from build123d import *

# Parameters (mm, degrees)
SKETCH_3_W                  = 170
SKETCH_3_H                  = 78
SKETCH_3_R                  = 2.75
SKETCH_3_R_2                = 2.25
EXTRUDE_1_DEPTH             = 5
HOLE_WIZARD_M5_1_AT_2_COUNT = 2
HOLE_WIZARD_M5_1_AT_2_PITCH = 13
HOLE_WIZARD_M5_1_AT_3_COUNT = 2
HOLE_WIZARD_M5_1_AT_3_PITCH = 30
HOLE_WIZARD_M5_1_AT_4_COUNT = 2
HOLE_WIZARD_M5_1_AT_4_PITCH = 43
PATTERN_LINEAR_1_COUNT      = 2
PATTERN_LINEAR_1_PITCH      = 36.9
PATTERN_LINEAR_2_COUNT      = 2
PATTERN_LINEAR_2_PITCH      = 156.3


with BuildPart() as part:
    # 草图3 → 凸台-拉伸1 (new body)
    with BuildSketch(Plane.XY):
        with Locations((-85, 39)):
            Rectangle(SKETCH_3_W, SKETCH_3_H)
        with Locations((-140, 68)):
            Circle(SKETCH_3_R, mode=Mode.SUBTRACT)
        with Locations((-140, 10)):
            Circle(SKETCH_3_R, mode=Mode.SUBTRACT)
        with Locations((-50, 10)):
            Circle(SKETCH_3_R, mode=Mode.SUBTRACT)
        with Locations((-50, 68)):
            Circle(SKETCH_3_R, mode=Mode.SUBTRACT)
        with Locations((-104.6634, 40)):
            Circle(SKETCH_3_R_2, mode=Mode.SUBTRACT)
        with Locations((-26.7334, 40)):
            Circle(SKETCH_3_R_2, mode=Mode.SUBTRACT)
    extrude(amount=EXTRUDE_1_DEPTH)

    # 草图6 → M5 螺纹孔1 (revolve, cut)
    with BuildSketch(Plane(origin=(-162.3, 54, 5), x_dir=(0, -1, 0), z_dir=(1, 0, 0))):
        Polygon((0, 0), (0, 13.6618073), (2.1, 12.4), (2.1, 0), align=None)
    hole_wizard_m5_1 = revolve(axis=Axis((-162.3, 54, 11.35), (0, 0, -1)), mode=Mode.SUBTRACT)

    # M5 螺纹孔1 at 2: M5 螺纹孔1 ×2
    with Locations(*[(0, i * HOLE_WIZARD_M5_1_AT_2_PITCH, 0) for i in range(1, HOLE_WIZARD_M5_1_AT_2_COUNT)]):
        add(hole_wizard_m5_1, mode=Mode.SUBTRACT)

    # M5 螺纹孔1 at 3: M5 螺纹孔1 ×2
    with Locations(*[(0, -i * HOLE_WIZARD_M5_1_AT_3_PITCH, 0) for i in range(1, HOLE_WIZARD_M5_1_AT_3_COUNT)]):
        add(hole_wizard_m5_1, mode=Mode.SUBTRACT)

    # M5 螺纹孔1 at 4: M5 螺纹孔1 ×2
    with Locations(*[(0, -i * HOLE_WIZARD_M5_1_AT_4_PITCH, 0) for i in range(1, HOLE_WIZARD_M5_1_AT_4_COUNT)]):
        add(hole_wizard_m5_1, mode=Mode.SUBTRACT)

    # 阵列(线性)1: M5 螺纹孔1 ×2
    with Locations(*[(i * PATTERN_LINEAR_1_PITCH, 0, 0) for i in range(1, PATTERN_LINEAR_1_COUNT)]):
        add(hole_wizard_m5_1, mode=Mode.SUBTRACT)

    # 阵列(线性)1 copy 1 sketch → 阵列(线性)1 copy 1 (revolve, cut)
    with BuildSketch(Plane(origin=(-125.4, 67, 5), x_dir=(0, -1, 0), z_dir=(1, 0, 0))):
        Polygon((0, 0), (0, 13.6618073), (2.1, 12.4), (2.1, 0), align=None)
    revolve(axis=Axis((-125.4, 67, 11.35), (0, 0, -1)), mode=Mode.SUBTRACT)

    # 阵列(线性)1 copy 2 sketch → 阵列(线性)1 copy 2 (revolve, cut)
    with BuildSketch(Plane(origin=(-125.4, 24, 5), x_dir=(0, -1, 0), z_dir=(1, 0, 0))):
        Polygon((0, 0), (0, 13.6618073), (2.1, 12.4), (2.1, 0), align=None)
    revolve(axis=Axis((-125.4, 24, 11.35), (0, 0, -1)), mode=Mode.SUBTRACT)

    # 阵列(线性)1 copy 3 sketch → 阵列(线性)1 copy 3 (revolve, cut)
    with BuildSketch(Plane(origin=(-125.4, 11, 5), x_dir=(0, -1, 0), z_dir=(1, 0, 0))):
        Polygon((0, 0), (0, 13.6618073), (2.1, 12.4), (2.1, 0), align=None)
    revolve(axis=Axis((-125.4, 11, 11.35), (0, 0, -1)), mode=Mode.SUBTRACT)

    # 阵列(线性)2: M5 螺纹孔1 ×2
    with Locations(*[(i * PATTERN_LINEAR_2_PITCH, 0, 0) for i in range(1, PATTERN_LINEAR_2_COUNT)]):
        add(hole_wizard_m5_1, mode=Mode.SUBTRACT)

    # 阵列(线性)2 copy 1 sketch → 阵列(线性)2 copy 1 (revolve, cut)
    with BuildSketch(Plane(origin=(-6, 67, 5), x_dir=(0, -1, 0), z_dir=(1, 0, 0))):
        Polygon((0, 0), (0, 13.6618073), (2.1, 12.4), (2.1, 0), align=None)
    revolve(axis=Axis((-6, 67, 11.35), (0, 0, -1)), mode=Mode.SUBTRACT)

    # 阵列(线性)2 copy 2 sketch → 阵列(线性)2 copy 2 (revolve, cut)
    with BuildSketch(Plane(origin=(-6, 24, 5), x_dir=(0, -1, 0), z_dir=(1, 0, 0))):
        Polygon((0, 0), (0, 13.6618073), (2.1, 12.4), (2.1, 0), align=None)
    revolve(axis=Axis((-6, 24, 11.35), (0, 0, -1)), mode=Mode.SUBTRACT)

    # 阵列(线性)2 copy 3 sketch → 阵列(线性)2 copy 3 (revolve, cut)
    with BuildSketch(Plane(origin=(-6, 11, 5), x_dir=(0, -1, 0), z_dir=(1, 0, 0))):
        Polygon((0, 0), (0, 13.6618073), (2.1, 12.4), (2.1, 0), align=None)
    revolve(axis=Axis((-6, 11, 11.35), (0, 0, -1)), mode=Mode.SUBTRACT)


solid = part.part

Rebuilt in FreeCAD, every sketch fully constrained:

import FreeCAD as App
import Part
import Sketcher
from FreeCAD import Vector
Q = App.Units.Quantity


def add_polygon(sketch, points):
    """Adds a closed chain of lines whose ends are joined by coincident constraints."""
    first, n = sketch.GeometryCount, len(points)
    for a, b in zip(points, points[1:] + points[:1]):
        sketch.addGeometry(Part.LineSegment(App.Vector(*a, 0), App.Vector(*b, 0)), False)
    for i in range(n):
        sketch.addConstraint(Sketcher.Constraint("Coincident", first + i, 2, first + (i + 1) % n, 1))

doc = App.newDocument("Part")
body = doc.addObject("PartDesign::Body", "Body")

# Sketch on XY plane
sketch1 = body.newObject("Sketcher::SketchObject", "Sketch")
sketch1.AttachmentSupport = (doc.getObject("XY_Plane"), [""])
sketch1.MapMode = "FlatFace"
add_polygon(sketch1, [(-170, 78), (-170, 0), (0, 0), (0, 78)])  # lines 0-3
sketch1.addGeometry(Part.Circle(Vector(-140, 10, 0), Vector(0, 0, 1), 2.8), False)  # 4
sketch1.addGeometry(Part.Circle(Vector(-50, 10, 0), Vector(0, 0, 1), 2.8), False)  # 5
sketch1.addGeometry(Part.Circle(Vector(-104.7, 40, 0), Vector(0, 0, 1), 2.2), False)  # 6
sketch1.addGeometry(Part.Circle(Vector(-140, 68, 0), Vector(0, 0, 1), 2.8), False)  # 7
sketch1.addGeometry(Part.Circle(Vector(-26.7, 40, 0), Vector(0, 0, 1), 2.2), False)  # 8
sketch1.addGeometry(Part.Circle(Vector(-50, 68, 0), Vector(0, 0, 1), 2.8), False)  # 9
sketch1.addConstraint(Sketcher.Constraint("Vertical", 0))
sketch1.addConstraint(Sketcher.Constraint("Horizontal", 1))
sketch1.addConstraint(Sketcher.Constraint("Vertical", 2))
sketch1.addConstraint(Sketcher.Constraint("Horizontal", 3))
sketch1.addConstraint(Sketcher.Constraint("Coincident", 1, 2, -1, 1))
sketch1.addConstraint(Sketcher.Constraint("Equal", 4, 5))
sketch1.addConstraint(Sketcher.Constraint("Equal", 5, 7))
sketch1.addConstraint(Sketcher.Constraint("Equal", 6, 8))
sketch1.addConstraint(Sketcher.Constraint("Equal", 7, 9))
sketch1.addConstraint(Sketcher.Constraint("Horizontal", 4, 3, 5, 3))
sketch1.addConstraint(Sketcher.Constraint("Horizontal", 6, 3, 8, 3))
sketch1.addConstraint(Sketcher.Constraint("Horizontal", 7, 3, 9, 3))
sketch1.addConstraint(Sketcher.Constraint("Vertical", 4, 3, 7, 3))
sketch1.addConstraint(Sketcher.Constraint("Vertical", 5, 3, 9, 3))
sketch1.addConstraint(Sketcher.Constraint("Diameter", 4, 5.5))
sketch1.addConstraint(Sketcher.Constraint("Diameter", 6, 4.5))
sketch1.addConstraint(Sketcher.Constraint("DistanceX", 1, 1, 1, 2, 170.0))
sketch1.addConstraint(Sketcher.Constraint("DistanceY", 0, 2, 0, 1, 78.0))
sketch1.addConstraint(Sketcher.Constraint("DistanceX", 4, 3, -1, 1, 140.0))
sketch1.addConstraint(Sketcher.Constraint("DistanceY", -1, 1, 4, 3, 10.0))
sketch1.addConstraint(Sketcher.Constraint("DistanceX", 5, 3, -1, 1, 50.0))
sketch1.addConstraint(Sketcher.Constraint("DistanceY", -1, 1, 6, 3, 40.0))
sketch1.addConstraint(Sketcher.Constraint("DistanceY", -1, 1, 7, 3, 68.0))
sketch1.addConstraint(Sketcher.Constraint("DistanceX", 6, 3, 8, 3, 77.93))
sketch1.addConstraint(Sketcher.Constraint("DistanceX", 6, 3, -1, 1, 104.6634))
pad1 = body.newObject("PartDesign::Pad", "Pad")
pad1.Profile = sketch1
pad1.Length = 5

# Sketch on YZ plane
sketch2 = body.newObject("Sketcher::SketchObject", "Sketch001")
sketch2.AttachmentSupport = (doc.getObject("YZ_Plane"), [""])
sketch2.MapMode = "FlatFace"
sketch2.AttachmentOffset = App.Placement(Vector(0, 0, -162.3), App.Rotation())
add_polygon(sketch2, [(54, -8.7), (54, 5), (51.9, 5), (51.9, -7.4)])  # lines 0-3
sketch2.addGeometry(Part.LineSegment(Vector(54, 5, 0), Vector(54, -8.7, 0)), True)  # axis
sketch2.addConstraint(Sketcher.Constraint("Vertical", 0))
sketch2.addConstraint(Sketcher.Constraint("Horizontal", 1))
sketch2.addConstraint(Sketcher.Constraint("Vertical", 2))
sketch2.addConstraint(Sketcher.Constraint("Vertical", 4))
sketch2.addConstraint(Sketcher.Constraint("Coincident", 4, 1, 0, 2))
sketch2.addConstraint(Sketcher.Constraint("Equal", 0, 4))
sketch2.addConstraint(Sketcher.Constraint("Angle", 3, Q("-31 deg")))
sketch2.addConstraint(Sketcher.Constraint("DistanceX", 1, 2, 1, 1, 2.1))
sketch2.addConstraint(Sketcher.Constraint("DistanceY", 2, 2, 2, 1, 12.4))
sketch2.addConstraint(Sketcher.Constraint("DistanceX", -1, 1, 0, 2, 54.0))
sketch2.addConstraint(Sketcher.Constraint("DistanceY", -1, 1, 0, 2, 5.0))
groove = body.newObject("PartDesign::Groove", "Groove")
groove.Profile = sketch2
groove.ReferenceAxis = (sketch2, ["Axis0"])
groove.Angle = 360
doc.recompute()

linearpattern = body.newObject("PartDesign::LinearPattern", "LinearPattern")
linearpattern.Originals = [groove]
linearpattern.Direction = (doc.getObject("Y_Axis"), [""])
linearpattern.Mode = "offset"
linearpattern.Offset = 13
linearpattern.Occurrences = 2
body.Tip = linearpattern
doc.recompute()

linearpattern2 = body.newObject("PartDesign::LinearPattern", "LinearPattern001")
linearpattern2.Originals = [groove]
linearpattern2.Direction = (doc.getObject("Y_Axis"), [""])
linearpattern2.Mode = "offset"
linearpattern2.Offset = 30
linearpattern2.Occurrences = 2
linearpattern2.Reversed = True
body.Tip = linearpattern2
doc.recompute()

linearpattern3 = body.newObject("PartDesign::LinearPattern", "LinearPattern002")
linearpattern3.Originals = [groove]
linearpattern3.Direction = (doc.getObject("Y_Axis"), [""])
linearpattern3.Mode = "offset"
linearpattern3.Offset = 43
linearpattern3.Occurrences = 2
linearpattern3.Reversed = True
body.Tip = linearpattern3
doc.recompute()

linearpattern4 = body.newObject("PartDesign::LinearPattern", "LinearPattern003")
linearpattern4.Originals = [groove]
linearpattern4.Direction = (doc.getObject("X_Axis"), [""])
linearpattern4.Mode = "offset"
linearpattern4.Offset = 36.9
linearpattern4.Occurrences = 2
body.Tip = linearpattern4

# Sketch on YZ plane
sketch3 = body.newObject("Sketcher::SketchObject", "Sketch002")
sketch3.AttachmentSupport = (doc.getObject("YZ_Plane"), [""])
sketch3.MapMode = "FlatFace"
sketch3.AttachmentOffset = App.Placement(Vector(0, 0, -125.4), App.Rotation())
add_polygon(sketch3, [(67, -8.7), (67, 5), (64.9, 5), (64.9, -7.4)])  # lines 0-3
sketch3.addGeometry(Part.LineSegment(Vector(67, 5, 0), Vector(67, -8.7, 0)), True)  # axis
sketch3.addConstraint(Sketcher.Constraint("Vertical", 0))
sketch3.addConstraint(Sketcher.Constraint("Horizontal", 1))
sketch3.addConstraint(Sketcher.Constraint("Vertical", 2))
sketch3.addConstraint(Sketcher.Constraint("Vertical", 4))
sketch3.addConstraint(Sketcher.Constraint("Coincident", 4, 1, 0, 2))
sketch3.addConstraint(Sketcher.Constraint("Equal", 0, 4))
sketch3.addConstraint(Sketcher.Constraint("Angle", 3, Q("-31 deg")))
sketch3.addConstraint(Sketcher.Constraint("DistanceX", 1, 2, 1, 1, 2.1))
sketch3.addConstraint(Sketcher.Constraint("DistanceY", 2, 2, 2, 1, 12.4))
sketch3.addConstraint(Sketcher.Constraint("DistanceX", -1, 1, 0, 2, 67.0))
sketch3.addConstraint(Sketcher.Constraint("DistanceY", -1, 1, 0, 2, 5.0))
groove2 = body.newObject("PartDesign::Groove", "Groove001")
groove2.Profile = sketch3
groove2.ReferenceAxis = (sketch3, ["Axis0"])
groove2.Angle = 360

# Sketch on YZ plane
sketch4 = body.newObject("Sketcher::SketchObject", "Sketch003")
sketch4.AttachmentSupport = (doc.getObject("YZ_Plane"), [""])
sketch4.MapMode = "FlatFace"
sketch4.AttachmentOffset = App.Placement(Vector(0, 0, -125.4), App.Rotation())
add_polygon(sketch4, [(24, -8.7), (24, 5), (21.9, 5), (21.9, -7.4)])  # lines 0-3
sketch4.addGeometry(Part.LineSegment(Vector(24, 5, 0), Vector(24, -8.7, 0)), True)  # axis
sketch4.addConstraint(Sketcher.Constraint("Vertical", 0))
sketch4.addConstraint(Sketcher.Constraint("Horizontal", 1))
sketch4.addConstraint(Sketcher.Constraint("Vertical", 2))
sketch4.addConstraint(Sketcher.Constraint("Vertical", 4))
sketch4.addConstraint(Sketcher.Constraint("Coincident", 4, 1, 0, 2))
sketch4.addConstraint(Sketcher.Constraint("Equal", 0, 4))
sketch4.addConstraint(Sketcher.Constraint("Angle", 3, Q("-31 deg")))
sketch4.addConstraint(Sketcher.Constraint("DistanceX", 1, 2, 1, 1, 2.1))
sketch4.addConstraint(Sketcher.Constraint("DistanceY", 2, 2, 2, 1, 12.4))
sketch4.addConstraint(Sketcher.Constraint("DistanceX", -1, 1, 0, 2, 24.0))
sketch4.addConstraint(Sketcher.Constraint("DistanceY", -1, 1, 0, 2, 5.0))
groove3 = body.newObject("PartDesign::Groove", "Groove002")
groove3.Profile = sketch4
groove3.ReferenceAxis = (sketch4, ["Axis0"])
groove3.Angle = 360

# Sketch on YZ plane
sketch5 = body.newObject("Sketcher::SketchObject", "Sketch004")
sketch5.AttachmentSupport = (doc.getObject("YZ_Plane"), [""])
sketch5.MapMode = "FlatFace"
sketch5.AttachmentOffset = App.Placement(Vector(0, 0, -125.4), App.Rotation())
add_polygon(sketch5, [(11, -8.7), (11, 5), (8.9, 5), (8.9, -7.4)])  # lines 0-3
sketch5.addGeometry(Part.LineSegment(Vector(11, 5, 0), Vector(11, -8.7, 0)), True)  # axis
sketch5.addConstraint(Sketcher.Constraint("Vertical", 0))
sketch5.addConstraint(Sketcher.Constraint("Horizontal", 1))
sketch5.addConstraint(Sketcher.Constraint("Vertical", 2))
sketch5.addConstraint(Sketcher.Constraint("Vertical", 4))
sketch5.addConstraint(Sketcher.Constraint("Coincident", 4, 1, 0, 2))
sketch5.addConstraint(Sketcher.Constraint("Equal", 0, 4))
sketch5.addConstraint(Sketcher.Constraint("Angle", 3, Q("-31 deg")))
sketch5.addConstraint(Sketcher.Constraint("DistanceX", 1, 2, 1, 1, 2.1))
sketch5.addConstraint(Sketcher.Constraint("DistanceY", 2, 2, 2, 1, 12.4))
sketch5.addConstraint(Sketcher.Constraint("DistanceX", -1, 1, 0, 2, 11.0))
sketch5.addConstraint(Sketcher.Constraint("DistanceY", -1, 1, 0, 2, 5.0))
groove4 = body.newObject("PartDesign::Groove", "Groove003")
groove4.Profile = sketch5
groove4.ReferenceAxis = (sketch5, ["Axis0"])
groove4.Angle = 360
doc.recompute()

linearpattern5 = body.newObject("PartDesign::LinearPattern", "LinearPattern004")
linearpattern5.Originals = [groove]
linearpattern5.Direction = (doc.getObject("X_Axis"), [""])
linearpattern5.Mode = "offset"
linearpattern5.Offset = 156.3
linearpattern5.Occurrences = 2
body.Tip = linearpattern5

# Sketch on YZ plane
sketch6 = body.newObject("Sketcher::SketchObject", "Sketch005")
sketch6.AttachmentSupport = (doc.getObject("YZ_Plane"), [""])
sketch6.MapMode = "FlatFace"
sketch6.AttachmentOffset = App.Placement(Vector(0, 0, -6), App.Rotation())
add_polygon(sketch6, [(67, -8.7), (67, 5), (64.9, 5), (64.9, -7.4)])  # lines 0-3
sketch6.addGeometry(Part.LineSegment(Vector(67, 5, 0), Vector(67, -8.7, 0)), True)  # axis
sketch6.addConstraint(Sketcher.Constraint("Vertical", 0))
sketch6.addConstraint(Sketcher.Constraint("Horizontal", 1))
sketch6.addConstraint(Sketcher.Constraint("Vertical", 2))
sketch6.addConstraint(Sketcher.Constraint("Vertical", 4))
sketch6.addConstraint(Sketcher.Constraint("Coincident", 4, 1, 0, 2))
sketch6.addConstraint(Sketcher.Constraint("Equal", 0, 4))
sketch6.addConstraint(Sketcher.Constraint("Angle", 3, Q("-31 deg")))
sketch6.addConstraint(Sketcher.Constraint("DistanceX", 1, 2, 1, 1, 2.1))
sketch6.addConstraint(Sketcher.Constraint("DistanceY", 2, 2, 2, 1, 12.4))
sketch6.addConstraint(Sketcher.Constraint("DistanceX", -1, 1, 0, 2, 67.0))
sketch6.addConstraint(Sketcher.Constraint("DistanceY", -1, 1, 0, 2, 5.0))
groove5 = body.newObject("PartDesign::Groove", "Groove004")
groove5.Profile = sketch6
groove5.ReferenceAxis = (sketch6, ["Axis0"])
groove5.Angle = 360

# Sketch on YZ plane
sketch7 = body.newObject("Sketcher::SketchObject", "Sketch006")
sketch7.AttachmentSupport = (doc.getObject("YZ_Plane"), [""])
sketch7.MapMode = "FlatFace"
sketch7.AttachmentOffset = App.Placement(Vector(0, 0, -6), App.Rotation())
add_polygon(sketch7, [(24, -8.7), (24, 5), (21.9, 5), (21.9, -7.4)])  # lines 0-3
sketch7.addGeometry(Part.LineSegment(Vector(24, 5, 0), Vector(24, -8.7, 0)), True)  # axis
sketch7.addConstraint(Sketcher.Constraint("Vertical", 0))
sketch7.addConstraint(Sketcher.Constraint("Horizontal", 1))
sketch7.addConstraint(Sketcher.Constraint("Vertical", 2))
sketch7.addConstraint(Sketcher.Constraint("Vertical", 4))
sketch7.addConstraint(Sketcher.Constraint("Coincident", 4, 1, 0, 2))
sketch7.addConstraint(Sketcher.Constraint("Equal", 0, 4))
sketch7.addConstraint(Sketcher.Constraint("Angle", 3, Q("-31 deg")))
sketch7.addConstraint(Sketcher.Constraint("DistanceX", 1, 2, 1, 1, 2.1))
sketch7.addConstraint(Sketcher.Constraint("DistanceY", 2, 2, 2, 1, 12.4))
sketch7.addConstraint(Sketcher.Constraint("DistanceX", -1, 1, 0, 2, 24.0))
sketch7.addConstraint(Sketcher.Constraint("DistanceY", -1, 1, 0, 2, 5.0))
groove6 = body.newObject("PartDesign::Groove", "Groove005")
groove6.Profile = sketch7
groove6.ReferenceAxis = (sketch7, ["Axis0"])
groove6.Angle = 360

# Sketch on YZ plane
sketch8 = body.newObject("Sketcher::SketchObject", "Sketch007")
sketch8.AttachmentSupport = (doc.getObject("YZ_Plane"), [""])
sketch8.MapMode = "FlatFace"
sketch8.AttachmentOffset = App.Placement(Vector(0, 0, -6), App.Rotation())
add_polygon(sketch8, [(11, -8.7), (11, 5), (8.9, 5), (8.9, -7.4)])  # lines 0-3
sketch8.addGeometry(Part.LineSegment(Vector(11, 5, 0), Vector(11, -8.7, 0)), True)  # axis
sketch8.addConstraint(Sketcher.Constraint("Vertical", 0))
sketch8.addConstraint(Sketcher.Constraint("Horizontal", 1))
sketch8.addConstraint(Sketcher.Constraint("Vertical", 2))
sketch8.addConstraint(Sketcher.Constraint("Vertical", 4))
sketch8.addConstraint(Sketcher.Constraint("Coincident", 4, 1, 0, 2))
sketch8.addConstraint(Sketcher.Constraint("Equal", 0, 4))
sketch8.addConstraint(Sketcher.Constraint("Angle", 3, Q("-31 deg")))
sketch8.addConstraint(Sketcher.Constraint("DistanceX", 1, 2, 1, 1, 2.1))
sketch8.addConstraint(Sketcher.Constraint("DistanceY", 2, 2, 2, 1, 12.4))
sketch8.addConstraint(Sketcher.Constraint("DistanceX", -1, 1, 0, 2, 11.0))
sketch8.addConstraint(Sketcher.Constraint("DistanceY", -1, 1, 0, 2, 5.0))
groove7 = body.newObject("PartDesign::Groove", "Groove006")
groove7.Profile = sketch8
groove7.ReferenceAxis = (sketch8, ["Axis0"])
groove7.Angle = 360

doc.recompute()
